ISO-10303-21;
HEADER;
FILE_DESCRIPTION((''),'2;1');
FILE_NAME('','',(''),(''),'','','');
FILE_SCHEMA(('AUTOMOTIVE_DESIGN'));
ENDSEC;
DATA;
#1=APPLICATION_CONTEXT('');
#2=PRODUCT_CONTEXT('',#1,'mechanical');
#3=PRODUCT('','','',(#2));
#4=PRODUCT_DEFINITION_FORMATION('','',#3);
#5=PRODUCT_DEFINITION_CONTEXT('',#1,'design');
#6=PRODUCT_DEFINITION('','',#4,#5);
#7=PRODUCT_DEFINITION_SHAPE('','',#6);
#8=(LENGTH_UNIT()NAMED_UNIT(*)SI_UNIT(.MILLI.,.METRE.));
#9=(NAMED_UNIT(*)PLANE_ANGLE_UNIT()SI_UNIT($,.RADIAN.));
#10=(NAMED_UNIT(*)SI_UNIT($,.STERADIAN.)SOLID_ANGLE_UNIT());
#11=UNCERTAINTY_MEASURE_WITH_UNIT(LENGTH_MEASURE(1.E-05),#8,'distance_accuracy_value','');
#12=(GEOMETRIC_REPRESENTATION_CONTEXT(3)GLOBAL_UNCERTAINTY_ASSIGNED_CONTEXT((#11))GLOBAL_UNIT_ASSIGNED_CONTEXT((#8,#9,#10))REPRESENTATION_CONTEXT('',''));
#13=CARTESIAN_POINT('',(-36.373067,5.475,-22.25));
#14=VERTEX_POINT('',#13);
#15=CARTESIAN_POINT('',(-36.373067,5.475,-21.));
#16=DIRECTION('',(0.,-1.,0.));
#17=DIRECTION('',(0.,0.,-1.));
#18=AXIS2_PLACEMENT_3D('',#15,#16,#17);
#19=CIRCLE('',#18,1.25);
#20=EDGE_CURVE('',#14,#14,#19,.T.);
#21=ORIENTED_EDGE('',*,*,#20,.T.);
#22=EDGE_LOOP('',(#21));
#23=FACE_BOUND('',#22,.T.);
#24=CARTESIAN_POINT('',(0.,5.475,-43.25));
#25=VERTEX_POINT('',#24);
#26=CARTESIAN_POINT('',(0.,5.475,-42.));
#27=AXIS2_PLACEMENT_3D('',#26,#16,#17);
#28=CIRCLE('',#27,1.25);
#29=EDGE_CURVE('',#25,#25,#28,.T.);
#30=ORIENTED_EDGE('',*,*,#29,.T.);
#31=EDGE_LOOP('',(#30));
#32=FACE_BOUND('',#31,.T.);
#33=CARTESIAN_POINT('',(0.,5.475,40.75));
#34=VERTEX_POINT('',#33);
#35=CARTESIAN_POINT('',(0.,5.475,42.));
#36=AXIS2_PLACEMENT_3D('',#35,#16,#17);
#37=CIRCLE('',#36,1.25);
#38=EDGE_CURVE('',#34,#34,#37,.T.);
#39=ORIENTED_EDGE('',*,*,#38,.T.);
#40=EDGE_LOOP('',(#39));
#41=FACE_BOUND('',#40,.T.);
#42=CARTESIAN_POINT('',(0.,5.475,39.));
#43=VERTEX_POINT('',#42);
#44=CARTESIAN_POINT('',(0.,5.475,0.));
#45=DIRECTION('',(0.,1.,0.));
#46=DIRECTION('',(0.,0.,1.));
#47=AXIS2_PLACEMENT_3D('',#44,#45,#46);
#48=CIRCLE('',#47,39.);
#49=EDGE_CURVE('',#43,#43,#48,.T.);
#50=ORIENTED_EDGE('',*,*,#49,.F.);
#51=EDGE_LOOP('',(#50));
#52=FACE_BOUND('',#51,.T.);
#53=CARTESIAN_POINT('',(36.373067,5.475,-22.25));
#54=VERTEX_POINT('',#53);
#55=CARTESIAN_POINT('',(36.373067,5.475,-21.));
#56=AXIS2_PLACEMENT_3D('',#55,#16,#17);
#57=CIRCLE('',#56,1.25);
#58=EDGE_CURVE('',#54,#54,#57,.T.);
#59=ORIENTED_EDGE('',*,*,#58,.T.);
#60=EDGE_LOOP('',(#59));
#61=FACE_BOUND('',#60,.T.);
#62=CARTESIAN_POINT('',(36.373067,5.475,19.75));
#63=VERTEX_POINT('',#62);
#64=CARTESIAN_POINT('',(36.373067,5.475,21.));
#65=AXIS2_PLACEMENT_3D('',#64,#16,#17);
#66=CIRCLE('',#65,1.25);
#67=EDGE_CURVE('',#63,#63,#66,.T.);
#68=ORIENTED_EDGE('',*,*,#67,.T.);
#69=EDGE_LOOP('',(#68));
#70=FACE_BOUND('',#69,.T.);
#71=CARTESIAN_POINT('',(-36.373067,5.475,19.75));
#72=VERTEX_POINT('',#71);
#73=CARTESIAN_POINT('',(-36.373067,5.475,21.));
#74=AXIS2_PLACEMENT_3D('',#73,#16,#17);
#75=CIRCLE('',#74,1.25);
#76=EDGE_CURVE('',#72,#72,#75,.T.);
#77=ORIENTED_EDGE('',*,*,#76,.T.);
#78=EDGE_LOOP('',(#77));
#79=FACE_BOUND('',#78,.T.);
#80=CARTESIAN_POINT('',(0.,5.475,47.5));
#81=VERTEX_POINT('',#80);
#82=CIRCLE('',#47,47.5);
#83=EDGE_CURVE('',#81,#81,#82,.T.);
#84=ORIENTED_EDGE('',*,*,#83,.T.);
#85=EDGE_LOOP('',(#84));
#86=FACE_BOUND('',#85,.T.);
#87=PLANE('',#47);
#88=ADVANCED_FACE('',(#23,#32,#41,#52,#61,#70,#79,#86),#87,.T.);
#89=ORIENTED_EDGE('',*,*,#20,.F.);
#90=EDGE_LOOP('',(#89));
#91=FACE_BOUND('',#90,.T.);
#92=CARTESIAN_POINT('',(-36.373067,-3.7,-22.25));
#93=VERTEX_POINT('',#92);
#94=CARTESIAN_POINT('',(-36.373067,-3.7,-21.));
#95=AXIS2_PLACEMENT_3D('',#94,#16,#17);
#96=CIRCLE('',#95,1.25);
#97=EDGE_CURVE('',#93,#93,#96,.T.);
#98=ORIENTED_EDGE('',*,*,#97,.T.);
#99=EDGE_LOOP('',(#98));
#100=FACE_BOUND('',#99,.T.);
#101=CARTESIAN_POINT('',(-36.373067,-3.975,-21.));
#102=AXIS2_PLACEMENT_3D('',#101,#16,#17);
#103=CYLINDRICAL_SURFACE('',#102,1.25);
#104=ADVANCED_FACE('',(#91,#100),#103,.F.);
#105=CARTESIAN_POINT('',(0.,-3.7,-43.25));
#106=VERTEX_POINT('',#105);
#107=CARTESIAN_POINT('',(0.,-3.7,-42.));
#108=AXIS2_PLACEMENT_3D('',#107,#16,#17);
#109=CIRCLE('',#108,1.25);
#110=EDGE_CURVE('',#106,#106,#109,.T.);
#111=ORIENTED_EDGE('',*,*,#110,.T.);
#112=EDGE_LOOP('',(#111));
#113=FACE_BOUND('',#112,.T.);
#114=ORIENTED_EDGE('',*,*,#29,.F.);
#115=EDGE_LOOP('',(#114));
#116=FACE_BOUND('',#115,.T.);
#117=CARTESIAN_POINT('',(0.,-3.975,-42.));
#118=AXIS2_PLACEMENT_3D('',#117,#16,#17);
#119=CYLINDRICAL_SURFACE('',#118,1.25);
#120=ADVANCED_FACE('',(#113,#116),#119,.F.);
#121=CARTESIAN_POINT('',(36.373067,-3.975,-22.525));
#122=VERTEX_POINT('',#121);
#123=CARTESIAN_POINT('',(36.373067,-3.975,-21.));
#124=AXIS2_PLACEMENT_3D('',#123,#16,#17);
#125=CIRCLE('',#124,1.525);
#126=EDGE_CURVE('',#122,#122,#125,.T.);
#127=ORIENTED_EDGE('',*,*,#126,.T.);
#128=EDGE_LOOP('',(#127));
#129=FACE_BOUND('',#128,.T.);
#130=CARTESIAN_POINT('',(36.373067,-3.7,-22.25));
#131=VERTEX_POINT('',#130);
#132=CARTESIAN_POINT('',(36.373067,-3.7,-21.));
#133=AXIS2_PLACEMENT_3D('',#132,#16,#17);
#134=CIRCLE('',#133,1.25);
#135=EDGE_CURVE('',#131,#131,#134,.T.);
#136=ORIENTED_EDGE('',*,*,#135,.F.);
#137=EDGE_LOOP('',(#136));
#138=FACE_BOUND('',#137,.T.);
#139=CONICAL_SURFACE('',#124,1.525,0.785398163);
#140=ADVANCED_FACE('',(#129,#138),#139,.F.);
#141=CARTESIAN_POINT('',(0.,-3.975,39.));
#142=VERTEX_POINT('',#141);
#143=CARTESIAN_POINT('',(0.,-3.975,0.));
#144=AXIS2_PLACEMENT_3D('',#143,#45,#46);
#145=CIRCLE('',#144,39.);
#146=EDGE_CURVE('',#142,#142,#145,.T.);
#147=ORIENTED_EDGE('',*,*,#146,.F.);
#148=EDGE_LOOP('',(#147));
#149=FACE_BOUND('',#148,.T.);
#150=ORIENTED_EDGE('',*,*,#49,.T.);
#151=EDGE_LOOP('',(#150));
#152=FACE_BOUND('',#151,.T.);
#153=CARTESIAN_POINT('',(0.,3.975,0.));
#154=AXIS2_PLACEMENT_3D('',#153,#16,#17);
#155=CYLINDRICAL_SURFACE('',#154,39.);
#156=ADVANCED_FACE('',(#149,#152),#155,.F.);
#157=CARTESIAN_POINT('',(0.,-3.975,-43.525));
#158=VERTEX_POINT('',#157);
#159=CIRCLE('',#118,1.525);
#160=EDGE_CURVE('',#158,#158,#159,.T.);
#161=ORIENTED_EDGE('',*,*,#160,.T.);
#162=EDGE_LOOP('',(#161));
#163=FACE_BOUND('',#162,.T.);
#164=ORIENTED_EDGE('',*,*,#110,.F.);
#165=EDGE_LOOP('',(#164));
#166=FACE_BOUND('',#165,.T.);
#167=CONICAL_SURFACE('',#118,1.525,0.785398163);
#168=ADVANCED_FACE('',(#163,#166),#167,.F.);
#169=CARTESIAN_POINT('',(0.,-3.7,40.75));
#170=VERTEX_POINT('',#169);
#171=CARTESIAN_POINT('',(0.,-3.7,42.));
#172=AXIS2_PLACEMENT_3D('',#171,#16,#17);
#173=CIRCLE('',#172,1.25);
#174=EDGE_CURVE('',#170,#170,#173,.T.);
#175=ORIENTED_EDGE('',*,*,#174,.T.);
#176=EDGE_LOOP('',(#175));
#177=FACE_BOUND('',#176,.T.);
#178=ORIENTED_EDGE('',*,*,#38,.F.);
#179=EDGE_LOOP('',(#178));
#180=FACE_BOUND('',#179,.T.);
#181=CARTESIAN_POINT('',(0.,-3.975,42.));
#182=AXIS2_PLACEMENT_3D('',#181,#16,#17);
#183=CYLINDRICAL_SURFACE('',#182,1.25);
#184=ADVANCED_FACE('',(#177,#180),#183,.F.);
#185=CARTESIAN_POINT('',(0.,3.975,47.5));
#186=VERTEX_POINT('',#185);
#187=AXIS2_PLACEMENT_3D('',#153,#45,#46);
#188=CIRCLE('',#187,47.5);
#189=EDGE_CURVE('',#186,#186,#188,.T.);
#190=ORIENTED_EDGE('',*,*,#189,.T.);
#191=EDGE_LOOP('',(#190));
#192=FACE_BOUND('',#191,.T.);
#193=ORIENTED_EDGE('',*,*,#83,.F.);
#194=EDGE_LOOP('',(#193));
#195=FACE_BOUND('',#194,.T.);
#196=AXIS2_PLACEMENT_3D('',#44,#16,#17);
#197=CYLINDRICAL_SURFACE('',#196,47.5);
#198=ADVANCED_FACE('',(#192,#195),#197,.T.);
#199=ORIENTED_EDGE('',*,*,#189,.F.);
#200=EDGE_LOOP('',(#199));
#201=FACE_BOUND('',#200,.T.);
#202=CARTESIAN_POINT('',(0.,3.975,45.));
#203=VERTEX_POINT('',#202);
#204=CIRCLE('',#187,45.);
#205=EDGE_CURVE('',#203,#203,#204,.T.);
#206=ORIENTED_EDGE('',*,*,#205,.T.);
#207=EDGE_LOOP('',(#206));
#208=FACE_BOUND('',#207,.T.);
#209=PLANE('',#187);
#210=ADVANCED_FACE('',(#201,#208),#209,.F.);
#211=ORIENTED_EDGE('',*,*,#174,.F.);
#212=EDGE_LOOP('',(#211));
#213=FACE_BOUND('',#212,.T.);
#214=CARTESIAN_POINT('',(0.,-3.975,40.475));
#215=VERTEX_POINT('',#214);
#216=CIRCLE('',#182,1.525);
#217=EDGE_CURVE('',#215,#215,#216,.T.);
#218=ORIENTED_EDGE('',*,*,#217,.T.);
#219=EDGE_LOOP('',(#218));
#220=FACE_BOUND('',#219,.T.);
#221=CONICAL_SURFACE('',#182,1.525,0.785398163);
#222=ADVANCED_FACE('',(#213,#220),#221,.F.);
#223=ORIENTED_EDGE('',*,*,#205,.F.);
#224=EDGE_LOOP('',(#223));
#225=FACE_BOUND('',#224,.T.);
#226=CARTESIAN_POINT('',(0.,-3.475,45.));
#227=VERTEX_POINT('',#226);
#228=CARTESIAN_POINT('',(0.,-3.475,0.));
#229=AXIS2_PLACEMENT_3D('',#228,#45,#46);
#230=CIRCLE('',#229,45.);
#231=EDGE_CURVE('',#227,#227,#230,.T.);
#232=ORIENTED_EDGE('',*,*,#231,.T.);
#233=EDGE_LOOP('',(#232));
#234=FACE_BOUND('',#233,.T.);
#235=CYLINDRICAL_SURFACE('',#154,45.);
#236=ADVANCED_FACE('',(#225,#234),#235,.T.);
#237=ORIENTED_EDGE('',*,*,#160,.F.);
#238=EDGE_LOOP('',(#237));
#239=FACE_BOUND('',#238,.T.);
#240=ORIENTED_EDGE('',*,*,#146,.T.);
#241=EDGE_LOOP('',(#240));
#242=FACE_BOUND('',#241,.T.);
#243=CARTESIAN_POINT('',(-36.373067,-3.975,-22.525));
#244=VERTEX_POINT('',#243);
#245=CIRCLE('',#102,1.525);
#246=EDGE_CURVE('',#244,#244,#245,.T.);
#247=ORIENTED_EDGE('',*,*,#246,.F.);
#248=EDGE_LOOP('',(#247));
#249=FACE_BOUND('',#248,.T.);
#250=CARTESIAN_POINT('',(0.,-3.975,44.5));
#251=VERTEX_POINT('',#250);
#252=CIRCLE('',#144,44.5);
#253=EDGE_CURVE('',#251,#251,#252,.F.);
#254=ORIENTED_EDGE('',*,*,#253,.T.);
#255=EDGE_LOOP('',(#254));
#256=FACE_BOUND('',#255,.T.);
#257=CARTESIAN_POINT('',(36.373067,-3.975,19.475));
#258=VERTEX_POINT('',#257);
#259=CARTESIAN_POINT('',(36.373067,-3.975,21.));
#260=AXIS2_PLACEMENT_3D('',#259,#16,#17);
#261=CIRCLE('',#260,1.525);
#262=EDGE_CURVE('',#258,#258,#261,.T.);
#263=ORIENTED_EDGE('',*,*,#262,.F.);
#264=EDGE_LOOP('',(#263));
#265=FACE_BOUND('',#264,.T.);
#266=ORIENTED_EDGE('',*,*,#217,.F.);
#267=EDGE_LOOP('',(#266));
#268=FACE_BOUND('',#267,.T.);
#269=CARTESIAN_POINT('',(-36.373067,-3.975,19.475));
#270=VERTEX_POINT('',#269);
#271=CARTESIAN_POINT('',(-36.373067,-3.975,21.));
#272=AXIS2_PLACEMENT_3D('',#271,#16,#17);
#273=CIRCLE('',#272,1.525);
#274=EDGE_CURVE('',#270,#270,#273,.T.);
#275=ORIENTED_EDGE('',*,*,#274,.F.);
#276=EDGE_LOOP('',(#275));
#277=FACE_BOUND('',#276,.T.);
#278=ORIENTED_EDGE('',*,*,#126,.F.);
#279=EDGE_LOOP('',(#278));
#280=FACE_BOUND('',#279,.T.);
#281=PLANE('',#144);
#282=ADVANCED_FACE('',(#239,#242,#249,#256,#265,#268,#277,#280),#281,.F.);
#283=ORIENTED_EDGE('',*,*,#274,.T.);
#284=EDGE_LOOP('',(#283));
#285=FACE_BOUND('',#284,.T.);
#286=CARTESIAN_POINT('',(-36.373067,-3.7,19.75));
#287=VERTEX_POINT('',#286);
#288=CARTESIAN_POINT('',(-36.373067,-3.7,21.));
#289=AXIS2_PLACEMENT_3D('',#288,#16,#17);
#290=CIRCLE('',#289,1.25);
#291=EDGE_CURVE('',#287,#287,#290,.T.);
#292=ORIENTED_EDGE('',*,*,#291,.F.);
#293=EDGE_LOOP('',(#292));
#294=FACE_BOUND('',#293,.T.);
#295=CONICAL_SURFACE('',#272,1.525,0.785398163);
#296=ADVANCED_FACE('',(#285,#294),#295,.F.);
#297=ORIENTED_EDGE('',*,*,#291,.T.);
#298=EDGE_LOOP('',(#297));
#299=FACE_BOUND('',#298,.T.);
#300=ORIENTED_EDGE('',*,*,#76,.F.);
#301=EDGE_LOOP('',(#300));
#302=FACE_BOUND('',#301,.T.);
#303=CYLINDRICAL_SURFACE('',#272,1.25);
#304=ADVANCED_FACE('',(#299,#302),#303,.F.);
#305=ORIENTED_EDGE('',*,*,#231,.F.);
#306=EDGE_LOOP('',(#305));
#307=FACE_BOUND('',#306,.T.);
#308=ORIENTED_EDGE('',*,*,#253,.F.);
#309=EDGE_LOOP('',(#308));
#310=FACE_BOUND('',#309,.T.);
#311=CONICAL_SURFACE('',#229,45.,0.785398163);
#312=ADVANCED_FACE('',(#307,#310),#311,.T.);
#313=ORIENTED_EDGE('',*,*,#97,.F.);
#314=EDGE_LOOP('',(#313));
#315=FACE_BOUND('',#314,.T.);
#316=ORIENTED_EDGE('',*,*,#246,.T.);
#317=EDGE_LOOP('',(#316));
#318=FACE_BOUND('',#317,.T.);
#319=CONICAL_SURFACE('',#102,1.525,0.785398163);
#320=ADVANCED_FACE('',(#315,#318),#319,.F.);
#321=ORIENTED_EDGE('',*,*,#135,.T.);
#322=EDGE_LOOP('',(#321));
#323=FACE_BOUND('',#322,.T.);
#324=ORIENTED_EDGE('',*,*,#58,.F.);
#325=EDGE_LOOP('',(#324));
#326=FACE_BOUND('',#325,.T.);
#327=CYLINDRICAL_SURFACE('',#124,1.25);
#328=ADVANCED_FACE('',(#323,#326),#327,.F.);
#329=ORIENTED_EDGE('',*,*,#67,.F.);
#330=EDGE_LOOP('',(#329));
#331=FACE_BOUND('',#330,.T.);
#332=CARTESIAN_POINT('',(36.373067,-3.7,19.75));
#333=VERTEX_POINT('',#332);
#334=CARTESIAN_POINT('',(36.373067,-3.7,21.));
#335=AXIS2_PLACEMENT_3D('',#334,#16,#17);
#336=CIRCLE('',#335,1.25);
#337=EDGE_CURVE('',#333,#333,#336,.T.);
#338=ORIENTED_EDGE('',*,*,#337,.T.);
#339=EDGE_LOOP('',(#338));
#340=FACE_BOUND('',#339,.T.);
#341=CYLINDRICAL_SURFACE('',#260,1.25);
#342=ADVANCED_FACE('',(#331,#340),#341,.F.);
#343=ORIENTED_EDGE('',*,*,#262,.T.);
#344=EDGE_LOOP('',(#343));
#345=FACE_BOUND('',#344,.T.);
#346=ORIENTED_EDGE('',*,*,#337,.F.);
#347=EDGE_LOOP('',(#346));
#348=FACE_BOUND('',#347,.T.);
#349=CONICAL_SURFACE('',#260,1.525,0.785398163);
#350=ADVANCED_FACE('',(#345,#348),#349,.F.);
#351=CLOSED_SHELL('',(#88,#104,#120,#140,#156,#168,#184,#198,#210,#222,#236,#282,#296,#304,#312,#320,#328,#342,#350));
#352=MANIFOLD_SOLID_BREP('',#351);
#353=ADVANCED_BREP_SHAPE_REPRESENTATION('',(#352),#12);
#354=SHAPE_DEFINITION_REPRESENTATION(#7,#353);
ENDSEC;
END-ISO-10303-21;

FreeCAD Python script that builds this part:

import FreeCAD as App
import Part
import Sketcher


def edges_at(feature, points):
    """Names of the edges that pass closest to the given points."""
    edges = feature.Shape.Edges
    near = lambda p: min(range(len(edges)), key=lambda i: edges[i].distToShape(Part.Vertex(*p))[0])
    return sorted({f"Edge{near(p) + 1}" for p in points})

doc = App.newDocument("Part")
body = doc.addObject("PartDesign::Body", "Body")

# Sketch on XZ plane
sketch1 = doc.addObject("Sketcher::SketchObject", "Sketch")
body.addObject(sketch1)
sketch1.AttachmentSupport = (doc.XZ_Plane, [""])
sketch1.MapMode = "FlatFace"
sketch1.addGeometry([
    Part.Circle(App.Vector(0, 0, 0), App.Vector(0, 0, 1), 45),
    Part.Circle(App.Vector(0, 0, 0), App.Vector(0, 0, 1), 39),
], False)
sketch1.addConstraint([
    Sketcher.Constraint("Coincident", 0, 3, -1, 1),
    Sketcher.Constraint("Coincident", 1, 3, -1, 1),
    Sketcher.Constraint("Diameter", 0, 90.0),
    Sketcher.Constraint("Diameter", 1, 78.0),
])
pad1 = doc.addObject("PartDesign::Pad", "Pad")
body.addObject(pad1)
pad1.Profile = sketch1
pad1.Length = 7.95
pad1.Midplane = True

# Sketch on XZ plane
sketch2 = doc.addObject("Sketcher::SketchObject", "Sketch001")
body.addObject(sketch2)
sketch2.AttachmentSupport = (doc.XZ_Plane, [""])
sketch2.MapMode = "FlatFace"
sketch2.AttachmentOffset = App.Placement(App.Vector(0, 0, -3.975), App.Rotation())
sketch2.addGeometry([
    Part.Circle(App.Vector(0, 0, 0), App.Vector(0, 0, 1), 48),
    Part.Circle(App.Vector(0, 0, 0), App.Vector(0, 0, 1), 39),
], False)
sketch2.addConstraint([
    Sketcher.Constraint("Coincident", 0, 3, -1, 1),
    Sketcher.Constraint("Coincident", 1, 3, -1, 1),
    Sketcher.Constraint("Diameter", 0, 95.0),
    Sketcher.Constraint("Diameter", 1, 78.0),
])
pad2 = doc.addObject("PartDesign::Pad", "Pad001")
body.addObject(pad2)
pad2.Profile = sketch2
pad2.Length = 1.5
pad2.Reversed = True

# Sketch on XZ plane
sketch3 = doc.addObject("Sketcher::SketchObject", "Sketch002")
body.addObject(sketch3)
sketch3.AttachmentSupport = (doc.XZ_Plane, [""])
sketch3.MapMode = "FlatFace"
sketch3.AttachmentOffset = App.Placement(App.Vector(0, 0, 3.975), App.Rotation())
sketch3.addGeometry(Part.Circle(App.Vector(0, -42, 0), App.Vector(0, 0, 1), 1.2), False)
sketch3.addConstraint([
    Sketcher.Constraint("PointOnObject", 0, 3, -2),
    Sketcher.Constraint("Diameter", 0, 2.5),
    Sketcher.Constraint("DistanceY", 0, 3, -1, 1, 42.0),
])
doc.recompute()
hole = doc.addObject("PartDesign::Hole", "Hole")
body.addObject(hole)
hole.Profile = sketch3
hole.ThreadType = "None"
hole.Diameter = 2.5
hole.DepthType = "ThroughAll"
hole.HoleCutType = "Countersink"
hole.HoleCutDiameter = 3.05
hole.HoleCutCountersinkAngle = 90
doc.recompute()

polarpattern = doc.addObject("PartDesign::PolarPattern", "PolarPattern")
body.addObject(polarpattern)
polarpattern.Originals = [hole]
polarpattern.Axis = (doc.Y_Axis, [""])
polarpattern.Angle = 360
polarpattern.Occurrences = 6
body.Tip = polarpattern
doc.recompute()

chamfer = doc.addObject("PartDesign::Chamfer", "Chamfer")
body.addObject(chamfer)
chamfer.Base = (polarpattern, edges_at(polarpattern, [(0, -3.975, -45)]))
chamfer.Size = 0.5

doc.recompute()
